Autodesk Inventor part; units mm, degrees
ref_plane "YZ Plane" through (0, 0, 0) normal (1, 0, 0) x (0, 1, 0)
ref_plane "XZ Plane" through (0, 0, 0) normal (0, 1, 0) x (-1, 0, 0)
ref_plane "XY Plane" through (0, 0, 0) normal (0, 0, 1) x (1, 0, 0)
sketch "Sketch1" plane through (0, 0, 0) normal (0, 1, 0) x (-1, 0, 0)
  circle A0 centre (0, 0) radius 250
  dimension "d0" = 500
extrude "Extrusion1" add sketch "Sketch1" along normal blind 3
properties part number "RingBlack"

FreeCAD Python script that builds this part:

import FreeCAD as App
import Part
import Sketcher
from FreeCAD import Vector
Q = App.Units.Quantity

doc = App.newDocument("Part")
body = doc.addObject("PartDesign::Body", "Body")

# Sketch on XZ plane
sketch1 = body.newObject("Sketcher::SketchObject", "Sketch")
sketch1.AttachmentSupport = (doc.getObject("XZ_Plane"), [""])
sketch1.MapMode = "FlatFace"
sketch1.addGeometry(Part.Circle(Vector(0, 0, 0), Vector(0, 0, 1), 250), False)
sketch1.addConstraint(Sketcher.Constraint("Coincident", 0, 3, -1, 1))
sketch1.addConstraint(Sketcher.Constraint("Diameter", 0, Q("500 mm")))
pad1 = body.newObject("PartDesign::Pad", "Pad")
pad1.Profile = sketch1
pad1.Length = 3
pad1.Reversed = True

doc.recompute()
